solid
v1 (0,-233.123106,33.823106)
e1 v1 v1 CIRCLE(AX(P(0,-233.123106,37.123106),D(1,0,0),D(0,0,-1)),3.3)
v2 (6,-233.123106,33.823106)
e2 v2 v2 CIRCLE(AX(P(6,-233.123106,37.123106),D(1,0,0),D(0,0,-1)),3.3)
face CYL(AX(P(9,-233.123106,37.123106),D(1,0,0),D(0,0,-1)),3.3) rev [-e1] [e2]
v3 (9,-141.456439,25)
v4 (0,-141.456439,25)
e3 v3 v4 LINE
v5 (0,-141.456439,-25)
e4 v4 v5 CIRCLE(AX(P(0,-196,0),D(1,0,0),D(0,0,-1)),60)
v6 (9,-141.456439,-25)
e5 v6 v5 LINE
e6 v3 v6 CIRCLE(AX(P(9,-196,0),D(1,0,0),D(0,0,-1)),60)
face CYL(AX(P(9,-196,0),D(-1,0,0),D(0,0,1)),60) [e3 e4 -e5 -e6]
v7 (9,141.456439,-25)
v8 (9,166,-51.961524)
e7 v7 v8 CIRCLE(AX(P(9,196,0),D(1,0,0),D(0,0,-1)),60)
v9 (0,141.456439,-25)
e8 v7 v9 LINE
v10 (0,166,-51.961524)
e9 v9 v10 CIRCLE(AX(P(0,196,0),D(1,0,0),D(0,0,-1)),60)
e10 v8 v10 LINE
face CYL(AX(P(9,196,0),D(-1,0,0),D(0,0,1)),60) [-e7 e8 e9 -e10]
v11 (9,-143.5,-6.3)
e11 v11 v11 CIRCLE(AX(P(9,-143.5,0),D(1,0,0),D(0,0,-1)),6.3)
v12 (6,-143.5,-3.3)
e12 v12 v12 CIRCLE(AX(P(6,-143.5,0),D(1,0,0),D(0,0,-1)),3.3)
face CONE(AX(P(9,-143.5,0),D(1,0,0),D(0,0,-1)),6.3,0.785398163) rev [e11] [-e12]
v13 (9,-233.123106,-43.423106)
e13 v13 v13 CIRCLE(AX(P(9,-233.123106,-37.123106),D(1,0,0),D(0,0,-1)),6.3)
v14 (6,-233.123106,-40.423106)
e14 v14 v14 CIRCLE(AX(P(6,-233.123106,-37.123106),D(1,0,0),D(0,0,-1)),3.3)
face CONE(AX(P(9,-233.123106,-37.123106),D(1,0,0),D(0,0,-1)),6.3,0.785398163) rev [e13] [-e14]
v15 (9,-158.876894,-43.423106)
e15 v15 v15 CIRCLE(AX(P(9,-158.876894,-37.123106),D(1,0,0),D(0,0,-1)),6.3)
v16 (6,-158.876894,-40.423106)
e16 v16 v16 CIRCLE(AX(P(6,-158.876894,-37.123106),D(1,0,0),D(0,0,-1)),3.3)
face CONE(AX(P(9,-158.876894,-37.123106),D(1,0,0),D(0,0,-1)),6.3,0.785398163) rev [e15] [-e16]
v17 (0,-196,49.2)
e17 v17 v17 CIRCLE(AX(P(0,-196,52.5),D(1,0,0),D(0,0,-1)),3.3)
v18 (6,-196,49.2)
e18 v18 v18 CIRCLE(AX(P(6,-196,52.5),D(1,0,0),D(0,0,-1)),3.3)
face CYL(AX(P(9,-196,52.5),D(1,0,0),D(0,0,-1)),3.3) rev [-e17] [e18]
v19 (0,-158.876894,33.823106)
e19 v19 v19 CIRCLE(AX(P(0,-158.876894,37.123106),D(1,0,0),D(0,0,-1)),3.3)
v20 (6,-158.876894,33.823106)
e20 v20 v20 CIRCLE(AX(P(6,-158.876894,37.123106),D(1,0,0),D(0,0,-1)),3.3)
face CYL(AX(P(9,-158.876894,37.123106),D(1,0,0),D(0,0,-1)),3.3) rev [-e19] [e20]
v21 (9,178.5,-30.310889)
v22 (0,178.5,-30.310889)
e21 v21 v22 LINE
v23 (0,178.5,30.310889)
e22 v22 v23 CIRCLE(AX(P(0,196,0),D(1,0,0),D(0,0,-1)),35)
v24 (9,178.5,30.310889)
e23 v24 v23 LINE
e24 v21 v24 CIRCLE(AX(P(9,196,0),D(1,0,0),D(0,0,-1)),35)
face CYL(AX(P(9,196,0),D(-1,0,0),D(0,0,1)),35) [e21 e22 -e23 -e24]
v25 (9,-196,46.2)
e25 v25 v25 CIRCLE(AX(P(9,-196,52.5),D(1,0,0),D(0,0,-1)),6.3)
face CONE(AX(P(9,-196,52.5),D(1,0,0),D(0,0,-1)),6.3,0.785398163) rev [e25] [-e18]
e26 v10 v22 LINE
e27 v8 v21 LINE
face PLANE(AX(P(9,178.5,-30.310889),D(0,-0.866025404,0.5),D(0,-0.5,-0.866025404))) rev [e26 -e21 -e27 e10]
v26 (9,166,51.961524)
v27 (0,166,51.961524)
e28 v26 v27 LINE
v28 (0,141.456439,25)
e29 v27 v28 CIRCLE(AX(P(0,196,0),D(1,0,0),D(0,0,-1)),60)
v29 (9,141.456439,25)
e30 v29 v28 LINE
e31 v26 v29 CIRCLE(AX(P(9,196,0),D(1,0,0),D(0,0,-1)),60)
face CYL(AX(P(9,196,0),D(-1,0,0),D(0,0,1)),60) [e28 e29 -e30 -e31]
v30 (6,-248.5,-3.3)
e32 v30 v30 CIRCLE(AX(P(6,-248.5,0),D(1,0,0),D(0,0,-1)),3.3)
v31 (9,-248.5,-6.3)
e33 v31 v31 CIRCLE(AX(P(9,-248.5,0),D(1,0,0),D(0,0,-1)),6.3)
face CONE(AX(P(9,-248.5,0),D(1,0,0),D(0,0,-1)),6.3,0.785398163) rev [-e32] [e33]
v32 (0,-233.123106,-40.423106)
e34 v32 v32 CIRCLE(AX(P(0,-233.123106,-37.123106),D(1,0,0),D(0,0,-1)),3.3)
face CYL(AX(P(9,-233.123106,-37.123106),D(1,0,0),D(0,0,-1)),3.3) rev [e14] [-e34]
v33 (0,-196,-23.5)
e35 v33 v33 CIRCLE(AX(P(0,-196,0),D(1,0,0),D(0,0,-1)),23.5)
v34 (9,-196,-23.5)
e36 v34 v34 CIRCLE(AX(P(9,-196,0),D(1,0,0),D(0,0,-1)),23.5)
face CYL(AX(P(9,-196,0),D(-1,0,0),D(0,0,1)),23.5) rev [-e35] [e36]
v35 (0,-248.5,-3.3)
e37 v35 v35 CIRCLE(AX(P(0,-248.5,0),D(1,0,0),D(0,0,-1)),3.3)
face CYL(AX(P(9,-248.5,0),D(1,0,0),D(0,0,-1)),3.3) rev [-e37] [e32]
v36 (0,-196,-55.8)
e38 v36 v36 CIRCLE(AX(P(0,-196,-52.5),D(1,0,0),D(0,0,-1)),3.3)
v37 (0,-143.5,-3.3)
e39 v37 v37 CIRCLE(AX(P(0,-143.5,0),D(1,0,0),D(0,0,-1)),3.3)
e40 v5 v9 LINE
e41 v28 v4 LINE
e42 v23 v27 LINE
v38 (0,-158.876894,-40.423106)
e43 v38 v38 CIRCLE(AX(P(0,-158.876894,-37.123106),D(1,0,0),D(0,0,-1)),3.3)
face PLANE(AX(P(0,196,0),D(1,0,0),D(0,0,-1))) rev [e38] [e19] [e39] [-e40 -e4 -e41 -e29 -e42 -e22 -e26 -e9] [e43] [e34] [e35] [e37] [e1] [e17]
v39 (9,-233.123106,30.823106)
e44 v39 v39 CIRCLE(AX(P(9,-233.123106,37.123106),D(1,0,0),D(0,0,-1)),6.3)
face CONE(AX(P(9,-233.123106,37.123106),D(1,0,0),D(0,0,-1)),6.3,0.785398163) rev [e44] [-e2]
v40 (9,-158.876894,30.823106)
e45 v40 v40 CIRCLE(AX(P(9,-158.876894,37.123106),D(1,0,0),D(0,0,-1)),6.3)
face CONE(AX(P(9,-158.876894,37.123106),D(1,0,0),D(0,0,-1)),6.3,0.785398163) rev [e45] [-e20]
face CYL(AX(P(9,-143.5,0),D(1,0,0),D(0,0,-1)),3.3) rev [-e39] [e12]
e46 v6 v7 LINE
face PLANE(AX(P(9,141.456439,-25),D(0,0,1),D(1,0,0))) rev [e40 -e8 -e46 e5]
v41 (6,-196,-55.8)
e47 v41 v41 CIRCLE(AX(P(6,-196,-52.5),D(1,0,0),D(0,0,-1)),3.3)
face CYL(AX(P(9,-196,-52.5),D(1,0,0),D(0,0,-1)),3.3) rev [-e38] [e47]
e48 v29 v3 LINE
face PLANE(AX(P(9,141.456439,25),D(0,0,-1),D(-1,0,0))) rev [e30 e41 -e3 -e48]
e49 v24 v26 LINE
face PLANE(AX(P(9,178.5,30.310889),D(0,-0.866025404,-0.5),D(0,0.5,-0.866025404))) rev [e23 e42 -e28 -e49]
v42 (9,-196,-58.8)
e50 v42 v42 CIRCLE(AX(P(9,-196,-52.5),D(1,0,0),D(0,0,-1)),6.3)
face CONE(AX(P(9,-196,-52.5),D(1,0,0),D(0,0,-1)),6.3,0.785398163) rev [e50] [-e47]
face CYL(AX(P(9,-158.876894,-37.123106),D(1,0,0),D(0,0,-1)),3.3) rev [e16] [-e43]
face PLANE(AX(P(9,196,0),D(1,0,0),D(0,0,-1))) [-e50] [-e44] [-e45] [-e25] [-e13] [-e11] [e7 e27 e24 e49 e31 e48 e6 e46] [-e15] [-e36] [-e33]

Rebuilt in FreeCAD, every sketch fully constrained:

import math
import FreeCAD as App
import Part
import Sketcher
Q = App.Units.Quantity

doc = App.newDocument("Part")
params = doc.addObject("Spreadsheet::Sheet", "Params")
for row, (alias, value) in enumerate([
    ("sketch1_diameter", "47 mm"),
    ("sketch1_radius", "60 mm"),
    ("sketch1_radius2", "35 mm"),
    ("pad1_length", "9 mm"),
    ("sketch2_diameter", "6.6 mm"),
    ("hole_diameter", "6.6 mm"),
    ("hole_csink_diameter", "12.6 mm"),
], start=1):
    params.set(f"A{row}", alias)
    params.set(f"B{row}", "=" + value)
    params.setAlias(f"B{row}", alias)

body = doc.addObject("PartDesign::Body", "Body")

sketch1 = doc.addObject("Sketcher::SketchObject", "Sketch")
body.addObject(sketch1)
sketch1.AttachmentSupport = (doc.YZ_Plane, [""])
sketch1.MapMode = "FlatFace"
sketch1.addGeometry([
    Part.LineSegment(App.Vector(178, 30, 0), App.Vector(166, 52, 0)),
    Part.ArcOfCircle(Part.Circle(App.Vector(196, 0, 0), App.Vector(0, 0, 1), 60), math.radians(120), math.radians(155)),
    Part.LineSegment(App.Vector(141, 25, 0), App.Vector(-141, 25, 0)),
    Part.ArcOfCircle(Part.Circle(App.Vector(-196, 0, 0), App.Vector(0, 0, 1), 60), math.radians(25), math.radians(335)),
    Part.LineSegment(App.Vector(-141, -25, 0), App.Vector(141, -25, 0)),
    Part.ArcOfCircle(Part.Circle(App.Vector(196, 0, 0), App.Vector(0, 0, 1), 60), math.radians(-155), math.radians(-120)),
    Part.LineSegment(App.Vector(166, -52, 0), App.Vector(178, -30, 0)),
    Part.ArcOfCircle(Part.Circle(App.Vector(196, 0, 0), App.Vector(0, 0, 1), 35), math.radians(-120), math.radians(120)),
    Part.Circle(App.Vector(-196, 0, 0), App.Vector(0, 0, 1), 24),
], False)
sketch1.addConstraint([
    Sketcher.Constraint("Coincident", 0, 2, 1, 1),
    Sketcher.Constraint("Coincident", 1, 2, 2, 1),
    Sketcher.Constraint("Coincident", 2, 2, 3, 1),
    Sketcher.Constraint("Coincident", 3, 2, 4, 1),
    Sketcher.Constraint("Coincident", 4, 2, 5, 1),
    Sketcher.Constraint("Coincident", 5, 2, 6, 1),
    Sketcher.Constraint("Coincident", 6, 2, 7, 1),
    Sketcher.Constraint("Coincident", 7, 2, 0, 1),
    Sketcher.Constraint("Horizontal", 2),
    Sketcher.Constraint("Horizontal", 4),
    Sketcher.Constraint("Coincident", 5, 3, 1, 3),
    Sketcher.Constraint("Coincident", 7, 3, 1, 3),
    Sketcher.Constraint("Coincident", 8, 3, 3, 3),
    Sketcher.Constraint("Equal", 1, 3),
    Sketcher.Constraint("Equal", 3, 5),
    Sketcher.Constraint("Symmetric", 1, 3, 3, 3, -1, 1),
    Sketcher.Constraint("Symmetric", 2, 2, 3, 2, -1),
    Sketcher.Constraint("Vertical", 0, 2, 5, 2),
    Sketcher.Constraint("Vertical", 6, 2, 7, 2),
    Sketcher.Constraint("Diameter", 8, Q("47 mm")),
    Sketcher.Constraint("Radius", 1, Q("60 mm")),
    Sketcher.Constraint("Radius", 7, Q("35 mm")),
    Sketcher.Constraint("Angle", 0, Q("120 deg")),
    Sketcher.Constraint("DistanceX", -1, 1, 1, 3, Q("196 mm")),
    Sketcher.Constraint("DistanceX", -1, 1, 0, 2, Q("166 mm")),
    Sketcher.Constraint("DistanceY", -1, 1, 1, 2, Q("25 mm")),
])
sketch1.setExpression("Constraints[19]", "Params.sketch1_diameter")
sketch1.setExpression("Constraints[20]", "Params.sketch1_radius")
sketch1.setExpression("Constraints[21]", "Params.sketch1_radius2")
pad1 = doc.addObject("PartDesign::Pad", "Pad")
body.addObject(pad1)
pad1.Profile = sketch1
pad1.setExpression("Length", "Params.pad1_length")

sketch2 = doc.addObject("Sketcher::SketchObject", "Sketch001")
body.addObject(sketch2)
sketch2.AttachmentSupport = (doc.YZ_Plane, [""])
sketch2.MapMode = "FlatFace"
sketch2.AttachmentOffset = App.Placement(App.Vector(0, 0, 9), App.Rotation())
sketch2.addGeometry([
    Part.Circle(App.Vector(-158.9, 37.1, 0), App.Vector(0, 0, 1), 3.3),
    Part.Circle(App.Vector(-143.5, 0, 0), App.Vector(0, 0, 1), 3.3),
    Part.Circle(App.Vector(-158.9, -37.1, 0), App.Vector(0, 0, 1), 3.3),
    Part.Circle(App.Vector(-196, -52.5, 0), App.Vector(0, 0, 1), 3.3),
    Part.Circle(App.Vector(-233.1, -37.1, 0), App.Vector(0, 0, 1), 3.3),
    Part.Circle(App.Vector(-248.5, 0, 0), App.Vector(0, 0, 1), 3.3),
    Part.Circle(App.Vector(-233.1, 37.1, 0), App.Vector(0, 0, 1), 3.3),
    Part.Circle(App.Vector(-196, 52.5, 0), App.Vector(0, 0, 1), 3.3),
], False)
sketch2.addConstraint([
    Sketcher.Constraint("Equal", 0, 1),
    Sketcher.Constraint("Equal", 1, 2),
    Sketcher.Constraint("Equal", 2, 3),
    Sketcher.Constraint("Equal", 3, 4),
    Sketcher.Constraint("Equal", 4, 5),
    Sketcher.Constraint("Equal", 5, 6),
    Sketcher.Constraint("Equal", 6, 7),
    Sketcher.Constraint("Symmetric", 0, 3, 2, 3, -1),
    Sketcher.Constraint("Symmetric", 4, 3, 6, 3, -1),
    Sketcher.Constraint("Symmetric", 3, 3, 7, 3, -1),
    Sketcher.Constraint("PointOnObject", 1, 3, -1),
    Sketcher.Constraint("PointOnObject", 5, 3, -1),
    Sketcher.Constraint("Horizontal", 2, 3, 4, 3),
    Sketcher.Constraint("Diameter", 0, Q("6.6 mm")),
    Sketcher.Constraint("DistanceX", 3, 3, -1, 1, Q("196 mm")),
    Sketcher.Constraint("DistanceX", 5, 3, 1, 3, Q("105 mm")),
    Sketcher.Constraint("DistanceX", 1, 3, -1, 1, Q("143.5 mm")),
    Sketcher.Constraint("DistanceY", 3, 3, -1, 1, Q("52.5 mm")),
    Sketcher.Constraint("DistanceX", 0, 3, -1, 1, Q("158.876894 mm")),
    Sketcher.Constraint("DistanceY", -1, 1, 0, 3, Q("37.123106 mm")),
    Sketcher.Constraint("DistanceX", 4, 3, -1, 1, Q("233.123106 mm")),
])
sketch2.setExpression("Constraints[13]", "Params.sketch2_diameter")
doc.recompute()
hole = doc.addObject("PartDesign::Hole", "Hole")
body.addObject(hole)
hole.Profile = sketch2
hole.ThreadType = "None"
hole.setExpression("Diameter", "Params.hole_diameter")
hole.DepthType = "ThroughAll"
hole.HoleCutType = "Countersink"
hole.setExpression("HoleCutDiameter", "Params.hole_csink_diameter")
hole.HoleCutCountersinkAngle = 90

doc.recompute()
